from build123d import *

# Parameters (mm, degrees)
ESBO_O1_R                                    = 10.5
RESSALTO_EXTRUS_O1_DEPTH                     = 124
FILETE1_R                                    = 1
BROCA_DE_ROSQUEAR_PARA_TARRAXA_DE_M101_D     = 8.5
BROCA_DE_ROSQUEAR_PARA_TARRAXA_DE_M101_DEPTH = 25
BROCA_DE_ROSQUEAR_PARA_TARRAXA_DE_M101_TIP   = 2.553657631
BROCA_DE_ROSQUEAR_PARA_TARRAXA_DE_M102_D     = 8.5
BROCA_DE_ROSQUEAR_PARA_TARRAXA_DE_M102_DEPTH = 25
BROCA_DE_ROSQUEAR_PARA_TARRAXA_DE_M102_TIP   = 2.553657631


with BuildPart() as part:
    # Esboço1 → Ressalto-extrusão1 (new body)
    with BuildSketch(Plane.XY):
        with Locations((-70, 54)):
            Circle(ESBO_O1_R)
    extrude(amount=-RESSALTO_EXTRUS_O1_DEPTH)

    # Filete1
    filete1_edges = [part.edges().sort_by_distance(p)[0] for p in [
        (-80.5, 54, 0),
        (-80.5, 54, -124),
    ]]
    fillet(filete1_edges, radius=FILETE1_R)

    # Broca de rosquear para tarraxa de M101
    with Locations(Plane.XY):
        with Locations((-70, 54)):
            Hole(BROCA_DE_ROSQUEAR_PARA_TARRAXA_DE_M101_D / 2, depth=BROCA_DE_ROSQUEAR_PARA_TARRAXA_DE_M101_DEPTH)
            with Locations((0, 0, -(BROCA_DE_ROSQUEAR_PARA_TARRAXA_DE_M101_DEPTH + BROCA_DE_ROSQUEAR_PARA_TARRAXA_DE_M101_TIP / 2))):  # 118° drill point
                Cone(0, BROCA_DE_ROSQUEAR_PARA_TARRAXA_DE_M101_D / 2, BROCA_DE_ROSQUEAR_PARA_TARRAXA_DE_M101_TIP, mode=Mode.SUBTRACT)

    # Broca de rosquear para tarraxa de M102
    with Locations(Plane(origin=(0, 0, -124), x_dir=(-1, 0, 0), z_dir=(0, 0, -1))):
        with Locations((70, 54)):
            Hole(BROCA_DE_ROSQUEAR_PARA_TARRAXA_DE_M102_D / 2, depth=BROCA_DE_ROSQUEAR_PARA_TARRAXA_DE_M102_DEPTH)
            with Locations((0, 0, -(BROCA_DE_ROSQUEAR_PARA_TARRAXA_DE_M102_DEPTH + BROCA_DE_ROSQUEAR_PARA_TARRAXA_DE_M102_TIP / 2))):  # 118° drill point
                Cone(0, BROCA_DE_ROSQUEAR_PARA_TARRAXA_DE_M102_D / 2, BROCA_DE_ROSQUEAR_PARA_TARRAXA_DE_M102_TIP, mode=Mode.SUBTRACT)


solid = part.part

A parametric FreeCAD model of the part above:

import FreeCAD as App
import Part
import Sketcher
Q = App.Units.Quantity


def edges_at(feature, points):
    """Names of the edges that pass closest to the given points."""
    edges = feature.Shape.Edges
    near = lambda p: min(range(len(edges)), key=lambda i: edges[i].distToShape(Part.Vertex(*p))[0])
    return sorted({f"Edge{near(p) + 1}" for p in points})

doc = App.newDocument("Part")
body = doc.addObject("PartDesign::Body", "Body")

# Sketch on XY plane
sketch1 = body.newObject("Sketcher::SketchObject", "Sketch")
sketch1.AttachmentSupport = (doc.getObject("XY_Plane"), [""])
sketch1.MapMode = "FlatFace"
sketch1.addGeometry(Part.Circle(App.Vector(-70, 54, 0), App.Vector(0, 0, 1), 10), False)
sketch1.addConstraint(Sketcher.Constraint("Diameter", 0, Q("21 mm")))
sketch1.addConstraint(Sketcher.Constraint("DistanceX", 0, 3, -1, 1, Q("70 mm")))
sketch1.addConstraint(Sketcher.Constraint("DistanceY", -1, 1, 0, 3, Q("54 mm")))
pad1 = body.newObject("PartDesign::Pad", "Pad")
pad1.Profile = sketch1
pad1.Length = 124
pad1.Reversed = True
doc.recompute()

fillet = body.newObject("PartDesign::Fillet", "Fillet")
fillet.Base = (pad1, edges_at(pad1, [(-80.5, 54, 0), (-80.5, 54, -124)]))
fillet.Radius = 1

# Sketch on XY plane
sketch2 = body.newObject("Sketcher::SketchObject", "Sketch001")
sketch2.AttachmentSupport = (doc.getObject("XY_Plane"), [""])
sketch2.MapMode = "FlatFace"
sketch2.addGeometry(Part.Circle(App.Vector(-70, 54, 0), App.Vector(0, 0, 1), 4.2), False)
sketch2.addConstraint(Sketcher.Constraint("Diameter", 0, Q("8.5 mm")))
sketch2.addConstraint(Sketcher.Constraint("DistanceX", 0, 3, -1, 1, Q("70 mm")))
sketch2.addConstraint(Sketcher.Constraint("DistanceY", -1, 1, 0, 3, Q("54 mm")))
doc.recompute()
hole = body.newObject("PartDesign::Hole", "Hole")
hole.Profile = sketch2
hole.ThreadType = "None"
hole.Diameter = 8.5
hole.DepthType = "Dimension"
hole.Depth = 25
hole.DrillPoint = "Angled"
hole.DrillPointAngle = 118

# Sketch on XY plane
sketch3 = body.newObject("Sketcher::SketchObject", "Sketch002")
sketch3.AttachmentSupport = (doc.getObject("XY_Plane"), [""])
sketch3.MapMode = "FlatFace"
sketch3.AttachmentOffset = App.Placement(App.Vector(0, 0, -124), App.Rotation())
sketch3.addGeometry(Part.Circle(App.Vector(-70, 54, 0), App.Vector(0, 0, 1), 4.2), False)
sketch3.addConstraint(Sketcher.Constraint("Diameter", 0, Q("8.5 mm")))
sketch3.addConstraint(Sketcher.Constraint("DistanceX", 0, 3, -1, 1, Q("70 mm")))
sketch3.addConstraint(Sketcher.Constraint("DistanceY", -1, 1, 0, 3, Q("54 mm")))
doc.recompute()
hole2 = body.newObject("PartDesign::Hole", "Hole001")
hole2.Profile = sketch3
hole2.ThreadType = "None"
hole2.Diameter = 8.5
hole2.DepthType = "Dimension"
hole2.Depth = 25
hole2.DrillPoint = "Angled"
hole2.DrillPointAngle = 118
hole2.Reversed = True

doc.recompute()
